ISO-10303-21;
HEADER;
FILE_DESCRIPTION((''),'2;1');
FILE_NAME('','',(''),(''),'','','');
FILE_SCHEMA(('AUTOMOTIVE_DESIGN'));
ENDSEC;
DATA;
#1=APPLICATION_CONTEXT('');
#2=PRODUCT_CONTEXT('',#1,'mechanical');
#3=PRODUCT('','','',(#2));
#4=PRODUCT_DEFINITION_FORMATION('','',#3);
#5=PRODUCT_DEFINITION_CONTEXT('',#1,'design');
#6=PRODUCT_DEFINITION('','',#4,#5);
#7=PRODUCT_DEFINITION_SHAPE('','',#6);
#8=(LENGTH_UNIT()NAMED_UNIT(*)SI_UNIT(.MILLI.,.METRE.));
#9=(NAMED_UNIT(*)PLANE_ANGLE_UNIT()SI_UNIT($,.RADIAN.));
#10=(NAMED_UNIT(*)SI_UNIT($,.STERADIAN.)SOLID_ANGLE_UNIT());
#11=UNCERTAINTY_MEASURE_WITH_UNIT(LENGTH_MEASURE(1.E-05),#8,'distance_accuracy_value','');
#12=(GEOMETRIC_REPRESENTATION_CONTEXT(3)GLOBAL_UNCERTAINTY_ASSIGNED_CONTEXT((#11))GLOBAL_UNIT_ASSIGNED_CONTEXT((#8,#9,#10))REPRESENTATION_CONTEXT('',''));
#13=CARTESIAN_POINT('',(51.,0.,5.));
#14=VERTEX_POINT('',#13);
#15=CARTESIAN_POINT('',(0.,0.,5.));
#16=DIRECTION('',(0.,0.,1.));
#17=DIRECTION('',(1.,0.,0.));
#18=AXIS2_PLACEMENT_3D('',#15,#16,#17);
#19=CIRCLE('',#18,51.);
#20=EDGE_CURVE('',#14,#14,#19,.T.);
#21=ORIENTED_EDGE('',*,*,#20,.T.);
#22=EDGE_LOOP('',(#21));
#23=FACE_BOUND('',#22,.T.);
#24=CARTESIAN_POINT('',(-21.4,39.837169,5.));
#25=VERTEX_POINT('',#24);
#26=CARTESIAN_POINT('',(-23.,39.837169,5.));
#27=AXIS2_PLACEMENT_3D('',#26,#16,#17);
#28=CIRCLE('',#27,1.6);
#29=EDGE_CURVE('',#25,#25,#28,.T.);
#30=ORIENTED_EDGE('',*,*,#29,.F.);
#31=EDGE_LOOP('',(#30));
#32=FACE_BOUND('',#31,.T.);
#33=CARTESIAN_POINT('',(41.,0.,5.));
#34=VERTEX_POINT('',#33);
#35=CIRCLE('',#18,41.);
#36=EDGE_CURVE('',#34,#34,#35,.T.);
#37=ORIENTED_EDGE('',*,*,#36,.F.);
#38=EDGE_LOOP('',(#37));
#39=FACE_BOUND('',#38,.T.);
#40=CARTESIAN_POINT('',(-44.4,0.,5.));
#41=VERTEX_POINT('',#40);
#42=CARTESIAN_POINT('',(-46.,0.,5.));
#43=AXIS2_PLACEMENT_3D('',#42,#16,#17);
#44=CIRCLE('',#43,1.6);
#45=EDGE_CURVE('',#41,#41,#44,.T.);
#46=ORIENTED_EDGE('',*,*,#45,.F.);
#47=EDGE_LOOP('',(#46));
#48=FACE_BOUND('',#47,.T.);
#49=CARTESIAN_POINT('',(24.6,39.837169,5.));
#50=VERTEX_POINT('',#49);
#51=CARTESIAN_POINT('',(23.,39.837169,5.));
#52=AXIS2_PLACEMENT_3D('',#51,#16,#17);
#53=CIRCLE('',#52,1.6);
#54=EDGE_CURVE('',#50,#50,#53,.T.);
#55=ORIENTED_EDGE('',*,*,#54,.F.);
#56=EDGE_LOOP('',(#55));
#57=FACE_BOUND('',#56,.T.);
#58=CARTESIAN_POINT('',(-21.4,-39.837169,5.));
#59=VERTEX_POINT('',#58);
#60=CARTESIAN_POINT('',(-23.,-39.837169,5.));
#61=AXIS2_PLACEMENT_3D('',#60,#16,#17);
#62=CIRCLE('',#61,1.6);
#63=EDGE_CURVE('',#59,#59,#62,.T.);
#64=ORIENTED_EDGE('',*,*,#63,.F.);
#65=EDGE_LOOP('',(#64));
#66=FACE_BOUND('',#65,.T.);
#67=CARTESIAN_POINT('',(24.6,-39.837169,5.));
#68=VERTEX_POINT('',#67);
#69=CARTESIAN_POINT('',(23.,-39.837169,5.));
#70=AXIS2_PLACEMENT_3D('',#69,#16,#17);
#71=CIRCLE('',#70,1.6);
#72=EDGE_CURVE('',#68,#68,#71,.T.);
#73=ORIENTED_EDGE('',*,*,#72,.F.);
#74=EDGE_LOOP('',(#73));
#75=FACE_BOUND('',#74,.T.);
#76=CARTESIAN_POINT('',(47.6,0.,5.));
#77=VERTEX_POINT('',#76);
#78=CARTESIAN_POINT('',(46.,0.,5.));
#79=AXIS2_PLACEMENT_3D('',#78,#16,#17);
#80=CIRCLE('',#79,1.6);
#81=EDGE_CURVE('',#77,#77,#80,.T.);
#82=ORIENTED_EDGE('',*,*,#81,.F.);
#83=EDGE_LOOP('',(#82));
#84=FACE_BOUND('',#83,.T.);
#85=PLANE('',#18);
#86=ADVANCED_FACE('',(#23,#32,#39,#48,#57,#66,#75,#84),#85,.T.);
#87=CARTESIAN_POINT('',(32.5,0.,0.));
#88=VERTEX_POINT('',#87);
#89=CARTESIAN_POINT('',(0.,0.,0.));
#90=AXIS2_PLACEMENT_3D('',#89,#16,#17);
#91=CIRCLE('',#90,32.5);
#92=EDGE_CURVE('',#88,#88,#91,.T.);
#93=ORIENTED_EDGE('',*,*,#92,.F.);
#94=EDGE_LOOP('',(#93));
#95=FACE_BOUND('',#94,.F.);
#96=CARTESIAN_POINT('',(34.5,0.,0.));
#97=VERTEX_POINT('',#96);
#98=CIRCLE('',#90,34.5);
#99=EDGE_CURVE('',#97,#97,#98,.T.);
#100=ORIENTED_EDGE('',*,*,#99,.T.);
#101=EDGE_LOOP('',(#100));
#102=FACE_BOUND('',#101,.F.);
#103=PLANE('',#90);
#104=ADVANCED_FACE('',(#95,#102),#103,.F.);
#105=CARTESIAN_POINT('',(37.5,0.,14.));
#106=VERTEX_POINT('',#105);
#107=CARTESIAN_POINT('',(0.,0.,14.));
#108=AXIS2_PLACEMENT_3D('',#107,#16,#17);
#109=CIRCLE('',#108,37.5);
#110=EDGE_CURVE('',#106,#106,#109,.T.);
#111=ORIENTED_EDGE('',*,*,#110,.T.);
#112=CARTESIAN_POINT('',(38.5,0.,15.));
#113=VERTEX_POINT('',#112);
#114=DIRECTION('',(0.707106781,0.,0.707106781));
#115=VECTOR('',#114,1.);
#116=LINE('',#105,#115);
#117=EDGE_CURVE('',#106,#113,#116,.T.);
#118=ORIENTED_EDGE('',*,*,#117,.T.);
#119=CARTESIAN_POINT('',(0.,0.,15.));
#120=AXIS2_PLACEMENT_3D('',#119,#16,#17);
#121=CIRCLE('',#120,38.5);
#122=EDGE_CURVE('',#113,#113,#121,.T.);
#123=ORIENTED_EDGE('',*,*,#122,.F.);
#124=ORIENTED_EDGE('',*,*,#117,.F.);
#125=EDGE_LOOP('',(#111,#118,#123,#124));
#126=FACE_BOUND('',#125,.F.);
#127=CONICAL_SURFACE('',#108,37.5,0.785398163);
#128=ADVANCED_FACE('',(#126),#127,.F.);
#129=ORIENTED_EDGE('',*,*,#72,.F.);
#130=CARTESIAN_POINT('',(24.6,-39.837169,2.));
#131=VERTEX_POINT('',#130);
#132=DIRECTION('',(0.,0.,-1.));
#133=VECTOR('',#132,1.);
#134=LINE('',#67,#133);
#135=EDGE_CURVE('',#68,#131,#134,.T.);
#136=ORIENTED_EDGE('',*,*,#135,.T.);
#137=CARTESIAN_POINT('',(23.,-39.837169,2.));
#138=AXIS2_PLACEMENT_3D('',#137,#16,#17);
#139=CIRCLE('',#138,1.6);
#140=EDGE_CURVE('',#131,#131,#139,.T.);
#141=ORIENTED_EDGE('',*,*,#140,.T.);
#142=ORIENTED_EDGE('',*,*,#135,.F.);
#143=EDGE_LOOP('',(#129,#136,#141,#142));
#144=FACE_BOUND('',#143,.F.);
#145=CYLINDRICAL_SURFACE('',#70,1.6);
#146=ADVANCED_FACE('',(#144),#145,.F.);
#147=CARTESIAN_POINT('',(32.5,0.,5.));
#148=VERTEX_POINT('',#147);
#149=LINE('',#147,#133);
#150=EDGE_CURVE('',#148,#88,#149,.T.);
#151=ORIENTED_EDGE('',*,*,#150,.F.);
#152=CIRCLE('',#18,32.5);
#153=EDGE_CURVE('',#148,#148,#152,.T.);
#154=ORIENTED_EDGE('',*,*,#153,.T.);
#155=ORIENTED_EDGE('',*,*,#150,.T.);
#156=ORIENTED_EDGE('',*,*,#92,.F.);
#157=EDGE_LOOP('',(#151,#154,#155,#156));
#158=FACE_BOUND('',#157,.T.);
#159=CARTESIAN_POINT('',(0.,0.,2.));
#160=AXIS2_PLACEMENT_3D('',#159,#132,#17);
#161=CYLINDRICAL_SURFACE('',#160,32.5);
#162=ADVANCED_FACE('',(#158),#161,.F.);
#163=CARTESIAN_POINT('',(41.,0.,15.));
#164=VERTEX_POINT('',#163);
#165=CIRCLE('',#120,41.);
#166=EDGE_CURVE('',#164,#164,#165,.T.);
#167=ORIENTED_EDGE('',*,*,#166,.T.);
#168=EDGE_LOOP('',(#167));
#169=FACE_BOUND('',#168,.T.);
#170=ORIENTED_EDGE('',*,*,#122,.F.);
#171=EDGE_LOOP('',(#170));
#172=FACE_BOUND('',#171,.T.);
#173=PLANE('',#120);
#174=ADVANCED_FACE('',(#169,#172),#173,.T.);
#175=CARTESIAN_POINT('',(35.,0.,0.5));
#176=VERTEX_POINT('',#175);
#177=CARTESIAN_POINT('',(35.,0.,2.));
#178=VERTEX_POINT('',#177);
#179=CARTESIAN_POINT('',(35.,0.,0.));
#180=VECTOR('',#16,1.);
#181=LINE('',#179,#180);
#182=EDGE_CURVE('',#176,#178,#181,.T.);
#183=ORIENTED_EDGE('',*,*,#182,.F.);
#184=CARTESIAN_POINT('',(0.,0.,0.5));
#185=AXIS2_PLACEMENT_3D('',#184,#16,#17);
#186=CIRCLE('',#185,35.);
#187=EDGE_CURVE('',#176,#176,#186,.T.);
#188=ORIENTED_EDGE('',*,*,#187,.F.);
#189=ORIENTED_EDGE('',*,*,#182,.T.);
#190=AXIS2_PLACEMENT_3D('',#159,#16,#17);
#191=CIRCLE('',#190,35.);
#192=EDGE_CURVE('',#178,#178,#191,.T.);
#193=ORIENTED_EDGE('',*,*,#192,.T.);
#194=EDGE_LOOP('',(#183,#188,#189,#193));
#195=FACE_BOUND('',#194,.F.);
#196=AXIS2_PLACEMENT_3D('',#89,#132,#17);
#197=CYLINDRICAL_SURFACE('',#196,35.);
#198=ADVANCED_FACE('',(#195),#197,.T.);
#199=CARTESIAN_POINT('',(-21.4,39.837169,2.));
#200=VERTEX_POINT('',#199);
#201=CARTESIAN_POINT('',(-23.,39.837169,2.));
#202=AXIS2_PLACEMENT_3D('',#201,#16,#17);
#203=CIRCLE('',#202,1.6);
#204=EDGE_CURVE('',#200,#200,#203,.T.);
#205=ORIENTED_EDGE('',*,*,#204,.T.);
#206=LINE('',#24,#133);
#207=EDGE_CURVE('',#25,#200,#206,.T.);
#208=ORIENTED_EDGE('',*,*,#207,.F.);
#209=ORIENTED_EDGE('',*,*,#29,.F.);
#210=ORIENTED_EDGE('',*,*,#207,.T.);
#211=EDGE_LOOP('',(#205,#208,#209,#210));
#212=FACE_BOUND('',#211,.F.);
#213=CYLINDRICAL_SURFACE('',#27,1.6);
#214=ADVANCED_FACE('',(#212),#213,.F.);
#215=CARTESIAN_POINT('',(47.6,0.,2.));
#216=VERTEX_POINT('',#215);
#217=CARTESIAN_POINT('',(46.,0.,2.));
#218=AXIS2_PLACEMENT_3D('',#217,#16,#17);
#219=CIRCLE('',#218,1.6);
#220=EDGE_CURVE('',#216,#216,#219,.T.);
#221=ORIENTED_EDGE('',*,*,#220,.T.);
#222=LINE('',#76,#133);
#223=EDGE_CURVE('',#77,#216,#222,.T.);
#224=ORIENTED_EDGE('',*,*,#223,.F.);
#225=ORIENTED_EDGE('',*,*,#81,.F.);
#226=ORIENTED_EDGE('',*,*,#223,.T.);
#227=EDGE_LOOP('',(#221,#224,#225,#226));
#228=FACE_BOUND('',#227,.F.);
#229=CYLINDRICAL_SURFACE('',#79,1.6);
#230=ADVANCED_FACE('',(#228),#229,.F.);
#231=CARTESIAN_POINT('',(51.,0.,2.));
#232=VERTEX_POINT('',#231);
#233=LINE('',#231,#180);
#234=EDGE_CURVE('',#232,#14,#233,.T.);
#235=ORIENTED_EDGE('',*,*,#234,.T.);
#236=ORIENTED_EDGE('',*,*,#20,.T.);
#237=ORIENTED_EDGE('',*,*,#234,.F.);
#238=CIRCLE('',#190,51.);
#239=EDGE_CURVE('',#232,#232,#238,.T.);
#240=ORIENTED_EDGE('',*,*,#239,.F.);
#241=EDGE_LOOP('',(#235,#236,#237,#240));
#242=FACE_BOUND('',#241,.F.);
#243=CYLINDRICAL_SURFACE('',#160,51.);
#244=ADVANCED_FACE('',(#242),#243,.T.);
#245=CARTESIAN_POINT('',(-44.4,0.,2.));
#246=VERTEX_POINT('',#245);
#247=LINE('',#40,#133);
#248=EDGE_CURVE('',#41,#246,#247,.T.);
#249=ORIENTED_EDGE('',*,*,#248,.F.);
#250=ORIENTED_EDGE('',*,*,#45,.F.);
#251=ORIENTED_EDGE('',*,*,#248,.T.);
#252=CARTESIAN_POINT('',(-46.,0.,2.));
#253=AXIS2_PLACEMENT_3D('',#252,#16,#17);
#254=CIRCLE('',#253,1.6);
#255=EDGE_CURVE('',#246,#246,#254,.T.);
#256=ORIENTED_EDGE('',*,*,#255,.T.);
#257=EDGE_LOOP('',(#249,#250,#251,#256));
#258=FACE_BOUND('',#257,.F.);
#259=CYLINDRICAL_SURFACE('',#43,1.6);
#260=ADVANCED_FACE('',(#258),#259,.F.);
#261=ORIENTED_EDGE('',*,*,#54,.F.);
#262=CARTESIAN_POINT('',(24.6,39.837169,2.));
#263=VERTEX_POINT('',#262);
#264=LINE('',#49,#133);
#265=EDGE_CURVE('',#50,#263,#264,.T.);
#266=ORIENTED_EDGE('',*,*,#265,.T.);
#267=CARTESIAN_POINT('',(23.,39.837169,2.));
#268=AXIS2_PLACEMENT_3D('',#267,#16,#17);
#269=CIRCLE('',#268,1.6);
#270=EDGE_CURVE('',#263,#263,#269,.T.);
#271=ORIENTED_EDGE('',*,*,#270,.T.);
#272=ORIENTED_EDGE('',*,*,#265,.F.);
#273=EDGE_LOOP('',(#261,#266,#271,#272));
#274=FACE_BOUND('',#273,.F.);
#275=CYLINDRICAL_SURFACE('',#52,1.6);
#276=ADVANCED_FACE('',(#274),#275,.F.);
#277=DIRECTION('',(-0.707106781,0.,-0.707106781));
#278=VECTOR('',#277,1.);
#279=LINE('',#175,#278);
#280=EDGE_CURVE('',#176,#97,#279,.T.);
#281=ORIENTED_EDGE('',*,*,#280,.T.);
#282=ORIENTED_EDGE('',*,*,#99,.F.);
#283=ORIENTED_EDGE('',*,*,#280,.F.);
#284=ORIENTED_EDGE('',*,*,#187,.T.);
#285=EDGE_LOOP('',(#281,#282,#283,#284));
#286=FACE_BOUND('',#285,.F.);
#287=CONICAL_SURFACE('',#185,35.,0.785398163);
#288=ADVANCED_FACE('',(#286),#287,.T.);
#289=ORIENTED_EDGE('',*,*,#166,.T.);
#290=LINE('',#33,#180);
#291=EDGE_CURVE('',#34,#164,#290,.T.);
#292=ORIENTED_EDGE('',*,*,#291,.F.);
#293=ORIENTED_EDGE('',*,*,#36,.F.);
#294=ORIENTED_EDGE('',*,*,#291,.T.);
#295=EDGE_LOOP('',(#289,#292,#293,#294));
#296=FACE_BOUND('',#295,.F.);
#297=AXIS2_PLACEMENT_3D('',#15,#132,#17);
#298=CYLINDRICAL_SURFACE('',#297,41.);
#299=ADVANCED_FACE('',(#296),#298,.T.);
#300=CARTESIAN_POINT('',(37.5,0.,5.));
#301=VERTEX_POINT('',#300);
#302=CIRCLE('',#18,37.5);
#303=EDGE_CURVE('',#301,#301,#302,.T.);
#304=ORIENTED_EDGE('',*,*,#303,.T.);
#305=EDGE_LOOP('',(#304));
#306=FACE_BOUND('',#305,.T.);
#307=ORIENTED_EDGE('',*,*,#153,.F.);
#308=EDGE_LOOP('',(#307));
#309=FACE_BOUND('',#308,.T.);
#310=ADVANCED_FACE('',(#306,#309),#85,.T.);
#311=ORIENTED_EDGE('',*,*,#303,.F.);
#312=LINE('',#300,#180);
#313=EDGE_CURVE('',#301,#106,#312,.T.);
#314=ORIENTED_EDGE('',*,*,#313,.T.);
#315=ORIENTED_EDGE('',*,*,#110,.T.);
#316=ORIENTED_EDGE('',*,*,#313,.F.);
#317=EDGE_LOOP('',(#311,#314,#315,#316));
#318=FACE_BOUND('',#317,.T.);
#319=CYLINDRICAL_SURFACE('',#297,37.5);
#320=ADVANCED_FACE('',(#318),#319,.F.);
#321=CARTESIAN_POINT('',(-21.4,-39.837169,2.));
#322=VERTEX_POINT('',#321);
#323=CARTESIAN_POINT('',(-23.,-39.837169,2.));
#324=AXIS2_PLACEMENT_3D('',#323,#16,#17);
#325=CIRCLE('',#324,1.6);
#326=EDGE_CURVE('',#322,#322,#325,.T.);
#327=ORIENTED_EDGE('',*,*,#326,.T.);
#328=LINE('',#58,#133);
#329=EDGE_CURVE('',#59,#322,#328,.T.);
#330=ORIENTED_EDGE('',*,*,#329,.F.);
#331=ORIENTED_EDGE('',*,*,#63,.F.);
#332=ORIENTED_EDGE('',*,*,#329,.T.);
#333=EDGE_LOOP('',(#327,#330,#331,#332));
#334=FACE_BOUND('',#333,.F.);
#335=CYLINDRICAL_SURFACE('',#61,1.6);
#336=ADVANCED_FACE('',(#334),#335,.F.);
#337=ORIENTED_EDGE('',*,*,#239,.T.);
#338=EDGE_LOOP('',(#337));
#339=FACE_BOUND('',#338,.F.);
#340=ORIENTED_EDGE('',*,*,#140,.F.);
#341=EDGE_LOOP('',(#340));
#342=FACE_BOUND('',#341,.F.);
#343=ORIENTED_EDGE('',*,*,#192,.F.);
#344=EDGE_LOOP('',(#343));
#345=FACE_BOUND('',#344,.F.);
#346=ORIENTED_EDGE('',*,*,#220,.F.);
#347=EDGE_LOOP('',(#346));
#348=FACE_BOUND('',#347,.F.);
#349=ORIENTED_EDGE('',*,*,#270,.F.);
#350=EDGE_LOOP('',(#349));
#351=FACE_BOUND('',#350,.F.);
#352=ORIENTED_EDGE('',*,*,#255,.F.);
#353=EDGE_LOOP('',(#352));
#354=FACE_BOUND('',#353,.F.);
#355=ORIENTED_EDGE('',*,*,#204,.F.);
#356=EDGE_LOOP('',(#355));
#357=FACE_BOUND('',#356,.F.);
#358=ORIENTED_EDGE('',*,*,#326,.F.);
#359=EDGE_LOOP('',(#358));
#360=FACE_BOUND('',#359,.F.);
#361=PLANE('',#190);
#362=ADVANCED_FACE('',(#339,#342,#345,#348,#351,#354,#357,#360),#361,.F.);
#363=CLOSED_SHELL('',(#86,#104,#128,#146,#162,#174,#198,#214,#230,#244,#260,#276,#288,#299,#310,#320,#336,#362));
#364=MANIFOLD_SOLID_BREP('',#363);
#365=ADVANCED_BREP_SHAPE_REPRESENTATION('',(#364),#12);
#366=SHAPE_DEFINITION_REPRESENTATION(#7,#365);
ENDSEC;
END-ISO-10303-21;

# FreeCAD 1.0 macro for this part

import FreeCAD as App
import Part
import Sketcher
from FreeCAD import Vector


def edges_at(feature, points):
    """Names of the edges that pass closest to the given points."""
    edges = feature.Shape.Edges
    near = lambda p: min(range(len(edges)), key=lambda i: edges[i].distToShape(Part.Vertex(*p))[0])
    return sorted({f"Edge{near(p) + 1}" for p in points})

doc = App.newDocument("Part")
body = doc.addObject("PartDesign::Body", "Body")

sketch1 = body.newObject("Sketcher::SketchObject", "Sketch")
sketch1.AttachmentSupport = (doc.getObject("XY_Plane"), [""])
sketch1.MapMode = "FlatFace"
sketch1.addGeometry([
    Part.Circle(Vector(0, 0, 0), Vector(0, 0, 1), 35),
    Part.Circle(Vector(0, 0, 0), Vector(0, 0, 1), 32.5),
], False)
sketch1.addConstraint([
    Sketcher.Constraint("Coincident", 0, 3, -1, 1),
    Sketcher.Constraint("Coincident", 1, 3, -1, 1),
    Sketcher.Constraint("Diameter", 0, 70.0),
    Sketcher.Constraint("Diameter", 1, 65.0),
])
pad1 = body.newObject("PartDesign::Pad", "Pad")
pad1.Profile = sketch1
pad1.Length = 2

sketch2 = body.newObject("Sketcher::SketchObject", "Sketch001")
sketch2.AttachmentSupport = (doc.getObject("XY_Plane"), [""])
sketch2.MapMode = "FlatFace"
sketch2.AttachmentOffset = App.Placement(Vector(0, 0, 2), App.Rotation())
sketch2.addGeometry([
    Part.Circle(Vector(0, 0, 0), Vector(0, 0, 1), 51),
    Part.Circle(Vector(0, 0, 0), Vector(0, 0, 1), 32.5),
], False)
sketch2.addConstraint([
    Sketcher.Constraint("Coincident", 0, 3, -1, 1),
    Sketcher.Constraint("Coincident", 1, 3, -1, 1),
    Sketcher.Constraint("Diameter", 0, 102.0),
    Sketcher.Constraint("Diameter", 1, 65.0),
])
pad2 = body.newObject("PartDesign::Pad", "Pad001")
pad2.Profile = sketch2
pad2.Length = 3

sketch3 = body.newObject("Sketcher::SketchObject", "Sketch002")
sketch3.AttachmentSupport = (doc.getObject("XY_Plane"), [""])
sketch3.MapMode = "FlatFace"
sketch3.AttachmentOffset = App.Placement(Vector(0, 0, 5), App.Rotation())
sketch3.addGeometry([
    Part.Circle(Vector(0, 0, 0), Vector(0, 0, 1), 41),
    Part.Circle(Vector(0, 0, 0), Vector(0, 0, 1), 37.5),
], False)
sketch3.addConstraint([
    Sketcher.Constraint("Coincident", 0, 3, -1, 1),
    Sketcher.Constraint("Coincident", 1, 3, -1, 1),
    Sketcher.Constraint("Diameter", 0, 82.0),
    Sketcher.Constraint("Diameter", 1, 75.0),
])
pad3 = body.newObject("PartDesign::Pad", "Pad002")
pad3.Profile = sketch3
pad3.Length = 10

sketch4 = body.newObject("Sketcher::SketchObject", "Sketch003")
sketch4.AttachmentSupport = (doc.getObject("XY_Plane"), [""])
sketch4.MapMode = "FlatFace"
sketch4.AttachmentOffset = App.Placement(Vector(0, 0, 5), App.Rotation())
sketch4.addGeometry([
    Part.Circle(Vector(-23, 39.837169, 0), Vector(0, 0, 1), 1.6),
    Part.Circle(Vector(23, 39.837169, 0), Vector(0, 0, 1), 1.6),
    Part.Circle(Vector(46, 0, 0), Vector(0, 0, 1), 1.6),
    Part.Circle(Vector(23, -39.837169, 0), Vector(0, 0, 1), 1.6),
    Part.Circle(Vector(-23, -39.837169, 0), Vector(0, 0, 1), 1.6),
    Part.Circle(Vector(-46, 0, 0), Vector(0, 0, 1), 1.6),
], False)
sketch4.addConstraint([
    Sketcher.Constraint("Equal", 0, 1),
    Sketcher.Constraint("Equal", 1, 2),
    Sketcher.Constraint("Equal", 2, 3),
    Sketcher.Constraint("Equal", 3, 4),
    Sketcher.Constraint("Equal", 4, 5),
    Sketcher.Constraint("Symmetric", 0, 3, 3, 3, -1, 1),
    Sketcher.Constraint("Symmetric", 1, 3, 4, 3, -1, 1),
    Sketcher.Constraint("Symmetric", 2, 3, 5, 3, -1, 1),
    Sketcher.Constraint("Symmetric", 0, 3, 1, 3, -2),
    Sketcher.Constraint("PointOnObject", 2, 3, -1),
    Sketcher.Constraint("Diameter", 0, 3.2),
    Sketcher.Constraint("DistanceX", 0, 3, -1, 1, 23.0),
    Sketcher.Constraint("DistanceX", -1, 1, 2, 3, 46.0),
    Sketcher.Constraint("DistanceY", -1, 1, 0, 3, 39.837169),
])
pocket1 = body.newObject("PartDesign::Pocket", "Pocket")
pocket1.Profile = sketch4
pocket1.Type = "ThroughAll"
doc.recompute()

chamfer = body.newObject("PartDesign::Chamfer", "Chamfer")
chamfer.Base = (pocket1, edges_at(pocket1, [(-35, 0, 0)]))
chamfer.Size = 0.5
doc.recompute()

chamfer2 = body.newObject("PartDesign::Chamfer", "Chamfer001")
chamfer2.Base = (chamfer, edges_at(chamfer, [(-37.5, 0, 15)]))
chamfer2.Size = 1

doc.recompute()
